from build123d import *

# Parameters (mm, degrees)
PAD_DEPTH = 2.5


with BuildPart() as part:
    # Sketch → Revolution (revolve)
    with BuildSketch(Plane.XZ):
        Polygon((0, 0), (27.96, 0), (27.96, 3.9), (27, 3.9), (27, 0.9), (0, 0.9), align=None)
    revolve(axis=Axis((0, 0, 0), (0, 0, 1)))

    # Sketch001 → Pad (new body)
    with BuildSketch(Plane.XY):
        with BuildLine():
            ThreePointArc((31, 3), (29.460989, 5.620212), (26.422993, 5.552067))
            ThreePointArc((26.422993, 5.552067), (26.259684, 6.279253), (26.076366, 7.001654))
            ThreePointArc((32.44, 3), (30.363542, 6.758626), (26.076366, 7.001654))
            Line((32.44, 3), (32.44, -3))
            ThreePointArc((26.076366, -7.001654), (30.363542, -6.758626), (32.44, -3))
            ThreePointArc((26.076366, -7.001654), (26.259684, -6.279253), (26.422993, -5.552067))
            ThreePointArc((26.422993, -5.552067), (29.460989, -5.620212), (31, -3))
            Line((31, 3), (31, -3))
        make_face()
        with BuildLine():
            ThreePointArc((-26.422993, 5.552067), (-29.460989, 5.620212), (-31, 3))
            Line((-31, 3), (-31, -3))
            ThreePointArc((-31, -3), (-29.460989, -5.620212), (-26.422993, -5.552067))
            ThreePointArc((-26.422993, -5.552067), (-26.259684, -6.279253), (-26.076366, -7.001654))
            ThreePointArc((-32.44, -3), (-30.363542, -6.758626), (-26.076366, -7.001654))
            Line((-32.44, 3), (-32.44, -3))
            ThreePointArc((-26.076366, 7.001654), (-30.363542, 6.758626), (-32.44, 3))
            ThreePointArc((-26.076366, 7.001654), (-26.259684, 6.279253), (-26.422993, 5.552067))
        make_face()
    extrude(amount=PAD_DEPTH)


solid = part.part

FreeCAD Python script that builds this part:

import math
import FreeCAD as App
import Part
import Sketcher

doc = App.newDocument("Part")
body = doc.addObject("PartDesign::Body", "Body")

# Sketch on XZ plane
sketch1 = body.newObject("Sketcher::SketchObject", "Sketch")
sketch1.AttachmentSupport = (doc.getObject("XZ_Plane"), [""])
sketch1.MapMode = "FlatFace"
sketch1.addGeometry(Part.LineSegment(App.Vector(0, 0, 0), App.Vector(28, 0, 0)), False)
sketch1.addGeometry(Part.LineSegment(App.Vector(28, 0, 0), App.Vector(28, 3.9, 0)), False)
sketch1.addGeometry(Part.LineSegment(App.Vector(28, 3.9, 0), App.Vector(27, 3.9, 0)), False)
sketch1.addGeometry(Part.LineSegment(App.Vector(27, 3.9, 0), App.Vector(27, 0.9, 0)), False)
sketch1.addGeometry(Part.LineSegment(App.Vector(27, 0.9, 0), App.Vector(0, 0.9, 0)), False)
sketch1.addGeometry(Part.LineSegment(App.Vector(0, 0.9, 0), App.Vector(0, 0, 0)), False)
sketch1.addConstraint(Sketcher.Constraint("Coincident", 0, 2, 1, 1))
sketch1.addConstraint(Sketcher.Constraint("Coincident", 1, 2, 2, 1))
sketch1.addConstraint(Sketcher.Constraint("Coincident", 2, 2, 3, 1))
sketch1.addConstraint(Sketcher.Constraint("Coincident", 3, 2, 4, 1))
sketch1.addConstraint(Sketcher.Constraint("Coincident", 4, 2, 5, 1))
sketch1.addConstraint(Sketcher.Constraint("Coincident", 5, 2, 0, 1))
sketch1.addConstraint(Sketcher.Constraint("Horizontal", 0))
sketch1.addConstraint(Sketcher.Constraint("Vertical", 1))
sketch1.addConstraint(Sketcher.Constraint("Horizontal", 2))
sketch1.addConstraint(Sketcher.Constraint("Vertical", 3))
sketch1.addConstraint(Sketcher.Constraint("Horizontal", 4))
sketch1.addConstraint(Sketcher.Constraint("Vertical", 5))
sketch1.addConstraint(Sketcher.Constraint("Coincident", 5, 2, -1, 1))
sketch1.addConstraint(Sketcher.Constraint("DistanceX", 4, 2, 4, 1, 27.0))
sketch1.addConstraint(Sketcher.Constraint("DistanceY", 3, 2, 3, 1, 3.0))
sketch1.addConstraint(Sketcher.Constraint("DistanceY", 1, 1, 1, 2, 3.9))
sketch1.addConstraint(Sketcher.Constraint("DistanceX", 0, 1, 0, 2, 27.96))
revolution = body.newObject("PartDesign::Revolution", "Revolution")
revolution.Profile = sketch1
revolution.ReferenceAxis = (sketch1, ["V_Axis"])
revolution.Angle = 360

# Sketch on XY plane
sketch2 = body.newObject("Sketcher::SketchObject", "Sketch001")
sketch2.AttachmentSupport = (doc.getObject("XY_Plane"), [""])
sketch2.MapMode = "FlatFace"
sketch2.addGeometry(Part.ArcOfCircle(Part.Circle(App.Vector(28, 3, 0), App.Vector(0, 0, 1), 3), math.radians(0), math.radians(122)), False)
sketch2.addGeometry(Part.LineSegment(App.Vector(31, 3, 0), App.Vector(31, -3, 0)), False)
sketch2.addGeometry(Part.ArcOfCircle(Part.Circle(App.Vector(28, -3, 0), App.Vector(0, 0, 1), 3), math.radians(-122), math.radians(0)), False)
sketch2.addGeometry(Part.ArcOfCircle(Part.Circle(App.Vector(0, 0, 0), App.Vector(0, 0, 1), 27), math.radians(-15.03), math.radians(-11.87)), False)
sketch2.addGeometry(Part.ArcOfCircle(Part.Circle(App.Vector(28, -3, 0), App.Vector(0, 0, 1), 4.4), math.radians(-116), math.radians(0)), False)
sketch2.addGeometry(Part.LineSegment(App.Vector(32.4, -3, 0), App.Vector(32.4, 3, 0)), False)
sketch2.addGeometry(Part.ArcOfCircle(Part.Circle(App.Vector(28, 3, 0), App.Vector(0, 0, 1), 4.4), math.radians(0), math.radians(116)), False)
sketch2.addGeometry(Part.ArcOfCircle(Part.Circle(App.Vector(0, 0, 0), App.Vector(0, 0, 1), 27), math.radians(11.87), math.radians(15.03)), False)
sketch2.addGeometry(Part.ArcOfCircle(Part.Circle(App.Vector(-28, 3, 0), App.Vector(0, 0, 1), 3), math.radians(58), math.radians(180)), False)
sketch2.addGeometry(Part.ArcOfCircle(Part.Circle(App.Vector(0, 0, 0), App.Vector(0, 0, 1), 27), math.radians(164.97), math.radians(168.13)), False)
sketch2.addGeometry(Part.ArcOfCircle(Part.Circle(App.Vector(-28, 3, 0), App.Vector(0, 0, 1), 4.4), math.radians(64), math.radians(180)), False)
sketch2.addGeometry(Part.LineSegment(App.Vector(-32.4, 3, 0), App.Vector(-32.4, -3, 0)), False)
sketch2.addGeometry(Part.ArcOfCircle(Part.Circle(App.Vector(-28, -3, 0), App.Vector(0, 0, 1), 4.4), math.radians(-180), math.radians(-64)), False)
sketch2.addGeometry(Part.ArcOfCircle(Part.Circle(App.Vector(0, 0, 0), App.Vector(0, 0, 1), 27), math.radians(-168.13), math.radians(-164.97)), False)
sketch2.addGeometry(Part.ArcOfCircle(Part.Circle(App.Vector(-28, -3, 0), App.Vector(0, 0, 1), 3), math.radians(180), math.radians(302)), False)
sketch2.addGeometry(Part.LineSegment(App.Vector(-31, -3, 0), App.Vector(-31, 3, 0)), False)
sketch2.addConstraint(Sketcher.Constraint("Tangent", 0, 1, 1, 1))
sketch2.addConstraint(Sketcher.Constraint("Tangent", 1, 2, 2, 2))
sketch2.addConstraint(Sketcher.Constraint("Coincident", 2, 1, 3, 2))
sketch2.addConstraint(Sketcher.Constraint("Coincident", 3, 1, 4, 1))
sketch2.addConstraint(Sketcher.Constraint("Tangent", 4, 2, 5, 1))
sketch2.addConstraint(Sketcher.Constraint("Tangent", 5, 2, 6, 1))
sketch2.addConstraint(Sketcher.Constraint("Coincident", 6, 2, 7, 2))
sketch2.addConstraint(Sketcher.Constraint("Coincident", 7, 1, 0, 2))
sketch2.addConstraint(Sketcher.Constraint("Coincident", 8, 1, 9, 2))
sketch2.addConstraint(Sketcher.Constraint("Coincident", 9, 1, 10, 1))
sketch2.addConstraint(Sketcher.Constraint("Tangent", 10, 2, 11, 1))
sketch2.addConstraint(Sketcher.Constraint("Tangent", 11, 2, 12, 1))
sketch2.addConstraint(Sketcher.Constraint("Coincident", 12, 2, 13, 2))
sketch2.addConstraint(Sketcher.Constraint("Coincident", 13, 1, 14, 2))
sketch2.addConstraint(Sketcher.Constraint("Tangent", 14, 1, 15, 1))
sketch2.addConstraint(Sketcher.Constraint("Tangent", 15, 2, 8, 2))
sketch2.addConstraint(Sketcher.Constraint("Vertical", 1))
sketch2.addConstraint(Sketcher.Constraint("Vertical", 5))
sketch2.addConstraint(Sketcher.Constraint("Vertical", 11))
sketch2.addConstraint(Sketcher.Constraint("Vertical", 15))
sketch2.addConstraint(Sketcher.Constraint("Coincident", 4, 3, 2, 3))
sketch2.addConstraint(Sketcher.Constraint("Coincident", 6, 3, 0, 3))
sketch2.addConstraint(Sketcher.Constraint("Coincident", 10, 3, 8, 3))
sketch2.addConstraint(Sketcher.Constraint("Coincident", 14, 3, 12, 3))
sketch2.addConstraint(Sketcher.Constraint("Equal", 0, 2))
sketch2.addConstraint(Sketcher.Constraint("Equal", 3, 7))
sketch2.addConstraint(Sketcher.Constraint("Equal", 2, 8))
sketch2.addConstraint(Sketcher.Constraint("Equal", 7, 9))
sketch2.addConstraint(Sketcher.Constraint("Equal", 6, 10))
sketch2.addConstraint(Sketcher.Constraint("Equal", 10, 12))
sketch2.addConstraint(Sketcher.Constraint("Equal", 9, 13))
sketch2.addConstraint(Sketcher.Constraint("Symmetric", 2, 3, 8, 3, -1, 1))
sketch2.addConstraint(Sketcher.Constraint("Symmetric", 3, 3, 9, 3, -1, 1))
sketch2.addConstraint(Sketcher.Constraint("Symmetric", 7, 3, 13, 3, -1, 1))
sketch2.addConstraint(Sketcher.Constraint("Symmetric", 7, 3, 9, 3, -2))
sketch2.addConstraint(Sketcher.Constraint("Horizontal", 6, 3, 8, 3))
sketch2.addConstraint(Sketcher.Constraint("Horizontal", 4, 3, 12, 3))
sketch2.addConstraint(Sketcher.Constraint("Radius", 0, 3.0))
sketch2.addConstraint(Sketcher.Constraint("DistanceY", 1, 2, 1, 1, 6.0))
sketch2.addConstraint(Sketcher.Constraint("Radius", 4, 4.44))
sketch2.addConstraint(Sketcher.Constraint("DistanceX", -1, 1, 0, 3, 28.0))
sketch2.addConstraint(Sketcher.Constraint("Radius", 3, 26.999648))
sketch2.addConstraint(Sketcher.Constraint("DistanceX", -1, 1, 3, 3, 0.000341))
sketch2.addConstraint(Sketcher.Constraint("DistanceX", 8, 1, 9, 3, 26.422652))
pad1 = body.newObject("PartDesign::Pad", "Pad")
pad1.Profile = sketch2
pad1.Length = 2.5

doc.recompute()
